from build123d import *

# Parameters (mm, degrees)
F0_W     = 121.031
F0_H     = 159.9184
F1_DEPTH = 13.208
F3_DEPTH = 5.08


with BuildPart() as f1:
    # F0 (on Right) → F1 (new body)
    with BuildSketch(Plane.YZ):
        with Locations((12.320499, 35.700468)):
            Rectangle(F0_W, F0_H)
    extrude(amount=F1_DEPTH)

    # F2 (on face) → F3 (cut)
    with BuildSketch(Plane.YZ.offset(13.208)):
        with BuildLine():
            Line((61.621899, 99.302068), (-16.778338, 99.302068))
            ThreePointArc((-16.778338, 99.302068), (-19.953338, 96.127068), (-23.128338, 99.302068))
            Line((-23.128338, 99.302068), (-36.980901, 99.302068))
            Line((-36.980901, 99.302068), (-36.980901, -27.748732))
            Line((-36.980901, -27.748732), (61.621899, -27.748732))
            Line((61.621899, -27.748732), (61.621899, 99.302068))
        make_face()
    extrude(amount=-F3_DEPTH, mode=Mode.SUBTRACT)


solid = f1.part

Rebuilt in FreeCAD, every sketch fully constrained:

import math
import FreeCAD as App
import Part
import Sketcher

V = App.Vector
Q = App.Units.Quantity

doc = App.newDocument("Part")
params = doc.addObject("Spreadsheet::Sheet", "Params")
for row, (alias, value) in enumerate([
    ("sketch1_width", "4.765 in"),
    ("sketch1_height", "6.296 in"),
    ("pad1_length", "0.52 in"),
    ("sketch2_radius", "0.125 in"),
    ("sketch2_width", "3.882 in"),
    ("sketch2_height", "5.002 in"),
    ("pocket1_length", "0.2 in"),
], start=1):
    params.set(f"A{row}", alias)
    params.set(f"B{row}", "=" + value)
    params.setAlias(f"B{row}", alias)

body = doc.addObject("PartDesign::Body", "Body")

sketch1 = body.newObject("Sketcher::SketchObject", "Sketch")
sketch1.AttachmentSupport = (doc.getObject("YZ_Plane"), [""])
sketch1.MapMode = "FlatFace"
sketch1.addGeometry(Part.LineSegment(V(-48, 116, 0), V(-48, -44, 0)), False)
sketch1.addGeometry(Part.LineSegment(V(-48, -44, 0), V(73, -44, 0)), False)
sketch1.addGeometry(Part.LineSegment(V(73, -44, 0), V(73, 116, 0)), False)
sketch1.addGeometry(Part.LineSegment(V(73, 116, 0), V(-48, 116, 0)), False)
sketch1.addConstraint(Sketcher.Constraint("Coincident", 0, 2, 1, 1))
sketch1.addConstraint(Sketcher.Constraint("Coincident", 1, 2, 2, 1))
sketch1.addConstraint(Sketcher.Constraint("Coincident", 2, 2, 3, 1))
sketch1.addConstraint(Sketcher.Constraint("Coincident", 3, 2, 0, 1))
sketch1.addConstraint(Sketcher.Constraint("Vertical", 0))
sketch1.addConstraint(Sketcher.Constraint("Horizontal", 1))
sketch1.addConstraint(Sketcher.Constraint("Vertical", 2))
sketch1.addConstraint(Sketcher.Constraint("Horizontal", 3))
sketch1.addConstraint(Sketcher.Constraint("DistanceX", 1, 1, 1, 2, Q("4.765 in")))
sketch1.addConstraint(Sketcher.Constraint("DistanceY", 0, 2, 0, 1, Q("6.296 in")))
sketch1.addConstraint(Sketcher.Constraint("DistanceX", 0, 2, -1, 1, 48.195001))
sketch1.addConstraint(Sketcher.Constraint("DistanceY", 0, 2, -1, 1, 44.258732))
sketch1.setExpression("Constraints[8]", "Params.sketch1_width")
sketch1.setExpression("Constraints[9]", "Params.sketch1_height")
pad1 = body.newObject("PartDesign::Pad", "Pad")
pad1.Profile = sketch1
pad1.setExpression("Length", "Params.pad1_length")

sketch2 = body.newObject("Sketcher::SketchObject", "Sketch001")
sketch2.AttachmentSupport = (doc.getObject("YZ_Plane"), [""])
sketch2.MapMode = "FlatFace"
sketch2.AttachmentOffset = App.Placement(V(0, 0, 0.52 * 25.4), App.Rotation())
sketch2.addGeometry(Part.LineSegment(V(61.6, 99.3, 0), V(-16.8, 99.3, 0)), False)
sketch2.addGeometry(Part.ArcOfCircle(Part.Circle(V(-20, 99.3, 0), V(0, 0, 1), 3.2), math.radians(180), math.radians(360)), False)
sketch2.addGeometry(Part.LineSegment(V(-23.1, 99.3, 0), V(-37, 99.3, 0)), False)
sketch2.addGeometry(Part.LineSegment(V(-37, 99.3, 0), V(-37, -27.7, 0)), False)
sketch2.addGeometry(Part.LineSegment(V(-37, -27.7, 0), V(61.6, -27.7, 0)), False)
sketch2.addGeometry(Part.LineSegment(V(61.6, -27.7, 0), V(61.6, 99.3, 0)), False)
sketch2.addConstraint(Sketcher.Constraint("Coincident", 0, 2, 1, 2))
sketch2.addConstraint(Sketcher.Constraint("Coincident", 1, 1, 2, 1))
sketch2.addConstraint(Sketcher.Constraint("Coincident", 2, 2, 3, 1))
sketch2.addConstraint(Sketcher.Constraint("Coincident", 3, 2, 4, 1))
sketch2.addConstraint(Sketcher.Constraint("Coincident", 4, 2, 5, 1))
sketch2.addConstraint(Sketcher.Constraint("Coincident", 5, 2, 0, 1))
sketch2.addConstraint(Sketcher.Constraint("Horizontal", 0))
sketch2.addConstraint(Sketcher.Constraint("Horizontal", 2))
sketch2.addConstraint(Sketcher.Constraint("Vertical", 3))
sketch2.addConstraint(Sketcher.Constraint("Horizontal", 4))
sketch2.addConstraint(Sketcher.Constraint("Vertical", 5))
sketch2.addConstraint(Sketcher.Constraint("Horizontal", 1, 3, 0, 2))
sketch2.addConstraint(Sketcher.Constraint("Horizontal", 0, 2, 1, 1))
sketch2.addConstraint(Sketcher.Constraint("Radius", 1, Q("0.125 in")))
sketch2.addConstraint(Sketcher.Constraint("DistanceX", 4, 1, 4, 2, Q("3.882 in")))
sketch2.addConstraint(Sketcher.Constraint("DistanceY", 3, 2, 3, 1, Q("5.002 in")))
sketch2.addConstraint(Sketcher.Constraint("DistanceX", 2, 2, -1, 1, 36.980901))
sketch2.addConstraint(Sketcher.Constraint("DistanceX", 0, 2, 0, 1, 78.400237))
sketch2.addConstraint(Sketcher.Constraint("DistanceY", -1, 1, 1, 3, 99.302068))
sketch2.setExpression("Constraints[13]", "Params.sketch2_radius")
sketch2.setExpression("Constraints[14]", "Params.sketch2_width")
sketch2.setExpression("Constraints[15]", "Params.sketch2_height")
pocket1 = body.newObject("PartDesign::Pocket", "Pocket")
pocket1.Profile = sketch2
pocket1.setExpression("Length", "Params.pocket1_length")

doc.recompute()
